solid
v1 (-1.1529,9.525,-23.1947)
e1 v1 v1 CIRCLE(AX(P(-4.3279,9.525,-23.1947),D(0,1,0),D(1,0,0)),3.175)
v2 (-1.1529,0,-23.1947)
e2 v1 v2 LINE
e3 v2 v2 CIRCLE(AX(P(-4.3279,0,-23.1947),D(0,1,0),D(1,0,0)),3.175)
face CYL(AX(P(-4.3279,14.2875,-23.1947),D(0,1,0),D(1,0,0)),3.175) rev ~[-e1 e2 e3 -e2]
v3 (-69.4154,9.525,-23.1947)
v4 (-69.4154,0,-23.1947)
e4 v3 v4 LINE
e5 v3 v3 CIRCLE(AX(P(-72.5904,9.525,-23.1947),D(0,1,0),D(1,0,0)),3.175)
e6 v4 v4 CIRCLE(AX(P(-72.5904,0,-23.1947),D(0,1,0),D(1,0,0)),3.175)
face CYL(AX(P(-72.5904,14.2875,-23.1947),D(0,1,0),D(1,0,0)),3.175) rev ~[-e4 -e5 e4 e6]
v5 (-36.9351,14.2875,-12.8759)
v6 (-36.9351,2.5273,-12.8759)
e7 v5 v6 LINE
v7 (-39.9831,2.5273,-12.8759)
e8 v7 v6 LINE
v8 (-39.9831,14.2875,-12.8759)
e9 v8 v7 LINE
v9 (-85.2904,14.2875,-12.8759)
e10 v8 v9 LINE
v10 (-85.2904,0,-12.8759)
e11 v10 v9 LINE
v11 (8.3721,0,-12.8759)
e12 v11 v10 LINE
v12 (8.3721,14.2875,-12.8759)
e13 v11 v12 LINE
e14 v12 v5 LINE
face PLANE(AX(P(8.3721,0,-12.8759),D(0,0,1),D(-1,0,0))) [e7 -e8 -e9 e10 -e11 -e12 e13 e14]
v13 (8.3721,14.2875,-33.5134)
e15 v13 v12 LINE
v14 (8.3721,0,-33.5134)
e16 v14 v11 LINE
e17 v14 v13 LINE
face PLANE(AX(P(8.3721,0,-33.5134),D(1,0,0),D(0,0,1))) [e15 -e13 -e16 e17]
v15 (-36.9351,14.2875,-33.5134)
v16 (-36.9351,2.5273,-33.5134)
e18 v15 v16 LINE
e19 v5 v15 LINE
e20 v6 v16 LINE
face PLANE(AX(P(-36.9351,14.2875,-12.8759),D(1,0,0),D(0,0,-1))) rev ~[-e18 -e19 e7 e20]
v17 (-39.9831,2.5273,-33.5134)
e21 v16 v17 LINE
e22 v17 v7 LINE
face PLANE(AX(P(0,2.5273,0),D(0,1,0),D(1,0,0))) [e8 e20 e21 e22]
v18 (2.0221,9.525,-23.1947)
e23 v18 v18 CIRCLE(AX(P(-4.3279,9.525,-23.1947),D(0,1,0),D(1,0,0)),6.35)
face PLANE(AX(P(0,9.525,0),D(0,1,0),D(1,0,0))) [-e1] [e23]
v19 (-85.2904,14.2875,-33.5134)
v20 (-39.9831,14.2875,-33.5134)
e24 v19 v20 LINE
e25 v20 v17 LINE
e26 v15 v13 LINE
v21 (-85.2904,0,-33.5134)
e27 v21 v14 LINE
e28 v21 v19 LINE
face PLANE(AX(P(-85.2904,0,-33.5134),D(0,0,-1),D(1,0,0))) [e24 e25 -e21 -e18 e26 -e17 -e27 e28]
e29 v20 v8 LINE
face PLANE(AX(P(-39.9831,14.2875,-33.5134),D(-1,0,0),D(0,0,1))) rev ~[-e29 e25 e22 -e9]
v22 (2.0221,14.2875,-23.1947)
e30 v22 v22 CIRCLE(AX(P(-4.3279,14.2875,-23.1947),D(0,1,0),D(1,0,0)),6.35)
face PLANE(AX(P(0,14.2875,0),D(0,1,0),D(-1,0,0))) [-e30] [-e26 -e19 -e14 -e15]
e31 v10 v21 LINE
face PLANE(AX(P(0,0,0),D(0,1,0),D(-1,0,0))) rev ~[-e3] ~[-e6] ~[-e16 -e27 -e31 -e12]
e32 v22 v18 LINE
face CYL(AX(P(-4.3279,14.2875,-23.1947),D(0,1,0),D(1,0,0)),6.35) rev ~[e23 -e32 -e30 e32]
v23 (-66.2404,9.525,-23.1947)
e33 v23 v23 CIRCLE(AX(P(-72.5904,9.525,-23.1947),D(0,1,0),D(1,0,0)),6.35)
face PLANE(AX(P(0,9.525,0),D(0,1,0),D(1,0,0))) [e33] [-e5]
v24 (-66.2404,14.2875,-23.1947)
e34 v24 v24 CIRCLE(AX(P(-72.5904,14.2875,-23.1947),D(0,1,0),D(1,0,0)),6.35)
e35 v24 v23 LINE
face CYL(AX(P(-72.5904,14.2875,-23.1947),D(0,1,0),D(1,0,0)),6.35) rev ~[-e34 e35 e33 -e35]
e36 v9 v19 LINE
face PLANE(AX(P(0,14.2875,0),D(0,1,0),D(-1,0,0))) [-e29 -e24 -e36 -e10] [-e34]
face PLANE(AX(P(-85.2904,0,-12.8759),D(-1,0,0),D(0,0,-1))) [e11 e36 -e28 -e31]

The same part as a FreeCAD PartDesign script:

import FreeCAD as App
import Part
import Sketcher

V = App.Vector
Q = App.Units.Quantity


def add_polygon(sketch, points):
    """Adds a closed chain of lines whose ends are joined by coincident constraints."""
    first, n = sketch.GeometryCount, len(points)
    for a, b in zip(points, points[1:] + points[:1]):
        sketch.addGeometry(Part.LineSegment(App.Vector(*a, 0), App.Vector(*b, 0)), False)
    for i in range(n):
        sketch.addConstraint(Sketcher.Constraint("Coincident", first + i, 2, first + (i + 1) % n, 1))

doc = App.newDocument("Part")
body = doc.addObject("PartDesign::Body", "Body")

# Sketch on XZ plane
sketch1 = body.newObject("Sketcher::SketchObject", "Sketch")
sketch1.AttachmentSupport = (doc.getObject("XZ_Plane"), [""])
sketch1.MapMode = "FlatFace"
add_polygon(sketch1, [(8.3721, -33.5134), (-85.2904, -33.5134), (-85.2904, -12.8759), (8.3721, -12.8759)])  # lines 0-3
sketch1.addConstraint([
    Sketcher.Constraint("Horizontal", 0),
    Sketcher.Constraint("Vertical", 1),
    Sketcher.Constraint("Horizontal", 2),
    Sketcher.Constraint("Vertical", 3),
    Sketcher.Constraint("DistanceX", 0, 2, 0, 1, Q("3.6875 in")),
    Sketcher.Constraint("DistanceY", 1, 1, 1, 2, Q("0.8125 in")),
    Sketcher.Constraint("DistanceX", 0, 2, -1, 1, Q("3.3579 in")),
    Sketcher.Constraint("DistanceY", 0, 2, -1, 1, 33.5134),
])
pad1 = body.newObject("PartDesign::Pad", "Pad")
pad1.Profile = sketch1
pad1.Length = Q("0.5625 in")
pad1.Reversed = True

# Sketch on XZ plane
sketch2 = body.newObject("Sketcher::SketchObject", "Sketch001")
sketch2.AttachmentSupport = (doc.getObject("XZ_Plane"), [""])
sketch2.MapMode = "FlatFace"
sketch2.AttachmentOffset = App.Placement(V(0, 0, -0.5625 * 25.4), App.Rotation())
sketch2.addGeometry([
    Part.Circle(V(-72.5904, -23.1947, 0), V(0, 0, 1), 3.175),
    Part.Circle(V(-4.3279, -23.1947, 0), V(0, 0, 1), 3.175),
], False)
sketch2.addConstraint([
    Sketcher.Constraint("Equal", 0, 1),
    Sketcher.Constraint("Horizontal", 0, 3, 1, 3),
    Sketcher.Constraint("Diameter", 0, Q("0.25 in")),
    Sketcher.Constraint("DistanceX", 0, 3, 1, 3, Q("2.6875 in")),
    Sketcher.Constraint("DistanceX", 0, 3, -1, 1, Q("2.8579 in")),
    Sketcher.Constraint("DistanceY", 0, 3, -1, 1, 23.1947),
])
pocket1 = body.newObject("PartDesign::Pocket", "Pocket")
pocket1.Profile = sketch2
pocket1.Length = Q("0.5625 in")
pocket1.Reversed = True

# Sketch on XZ plane
sketch3 = body.newObject("Sketcher::SketchObject", "Sketch002")
sketch3.AttachmentSupport = (doc.getObject("XZ_Plane"), [""])
sketch3.MapMode = "FlatFace"
sketch3.AttachmentOffset = App.Placement(V(0, 0, -0.5625 * 25.4), App.Rotation())
sketch3.addGeometry([
    Part.Circle(V(-72.5904, -23.1947, 0), V(0, 0, 1), 6.35),
    Part.Circle(V(-72.5904, -23.1947, 0), V(0, 0, 1), 3.175),
    Part.Circle(V(-4.3279, -23.1947, 0), V(0, 0, 1), 6.35),
    Part.Circle(V(-4.3279, -23.1947, 0), V(0, 0, 1), 3.175),
], False)
sketch3.addConstraint([
    Sketcher.Constraint("Coincident", 1, 3, 0, 3),
    Sketcher.Constraint("Coincident", 3, 3, 2, 3),
    Sketcher.Constraint("Equal", 0, 2),
    Sketcher.Constraint("Equal", 1, 3),
    Sketcher.Constraint("Horizontal", 1, 3, 2, 3),
    Sketcher.Constraint("Diameter", 0, Q("0.5 in")),
    Sketcher.Constraint("Diameter", 1, Q("0.25 in")),
    Sketcher.Constraint("DistanceX", 0, 3, 2, 3, Q("2.6875 in")),
    Sketcher.Constraint("DistanceX", 0, 3, -1, 1, Q("2.8579 in")),
    Sketcher.Constraint("DistanceY", 0, 3, -1, 1, 23.1947),
])
pocket2 = body.newObject("PartDesign::Pocket", "Pocket001")
pocket2.Profile = sketch3
pocket2.Length = Q("0.1875 in")
pocket2.Reversed = True

# Sketch on XZ plane
sketch4 = body.newObject("Sketcher::SketchObject", "Sketch003")
sketch4.AttachmentSupport = (doc.getObject("XZ_Plane"), [""])
sketch4.MapMode = "FlatFace"
sketch4.AttachmentOffset = App.Placement(V(0, 0, -0.5625 * 25.4), App.Rotation())
add_polygon(sketch4, [(-36.9351, -12.8759), (-36.9351, -33.5134), (-39.9831, -33.5134), (-39.9831, -12.8759)])  # lines 0-3
sketch4.addConstraint([
    Sketcher.Constraint("Vertical", 0),
    Sketcher.Constraint("Horizontal", 1),
    Sketcher.Constraint("Vertical", 2),
    Sketcher.Constraint("Horizontal", 3),
    Sketcher.Constraint("DistanceX", 1, 2, 1, 1, Q("0.12 in")),
    Sketcher.Constraint("DistanceY", 0, 2, 0, 1, Q("0.8125 in")),
    Sketcher.Constraint("DistanceX", 0, 2, -1, 1, 36.935),
    Sketcher.Constraint("DistanceY", 0, 2, -1, 1, 33.5134),
])
pocket3 = body.newObject("PartDesign::Pocket", "Pocket002")
pocket3.Profile = sketch4
pocket3.Length = Q("0.463 in")
pocket3.Reversed = True

doc.recompute()
